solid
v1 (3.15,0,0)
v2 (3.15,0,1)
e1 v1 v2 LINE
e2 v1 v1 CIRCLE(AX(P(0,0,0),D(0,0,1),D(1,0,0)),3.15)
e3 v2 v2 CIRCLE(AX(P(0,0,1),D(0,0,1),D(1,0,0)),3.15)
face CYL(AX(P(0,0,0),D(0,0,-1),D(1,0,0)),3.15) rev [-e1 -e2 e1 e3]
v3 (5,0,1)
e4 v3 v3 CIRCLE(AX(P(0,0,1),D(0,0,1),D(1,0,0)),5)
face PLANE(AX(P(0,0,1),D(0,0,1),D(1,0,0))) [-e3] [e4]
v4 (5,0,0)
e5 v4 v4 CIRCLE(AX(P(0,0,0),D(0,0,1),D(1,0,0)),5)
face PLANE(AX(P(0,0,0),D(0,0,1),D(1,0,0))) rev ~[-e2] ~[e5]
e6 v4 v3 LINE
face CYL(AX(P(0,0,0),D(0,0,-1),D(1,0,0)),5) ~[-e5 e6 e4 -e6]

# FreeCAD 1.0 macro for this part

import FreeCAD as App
import Part
import Sketcher
from FreeCAD import Vector

doc = App.newDocument("Part")
body = doc.addObject("PartDesign::Body", "Body")

# Sketch on XY plane
sketch1 = body.newObject("Sketcher::SketchObject", "Sketch")
sketch1.AttachmentSupport = (doc.getObject("XY_Plane"), [""])
sketch1.MapMode = "FlatFace"
sketch1.addGeometry(Part.Circle(Vector(0, 0, 0), Vector(0, 0, 1), 5), False)
sketch1.addGeometry(Part.Circle(Vector(0, 0, 0), Vector(0, 0, 1), 3.1), False)
sketch1.addConstraint(Sketcher.Constraint("Coincident", 0, 3, -1, 1))
sketch1.addConstraint(Sketcher.Constraint("Coincident", 1, 3, -1, 1))
sketch1.addConstraint(Sketcher.Constraint("Diameter", 0, 10.0))
sketch1.addConstraint(Sketcher.Constraint("Diameter", 1, 6.3))
pad1 = body.newObject("PartDesign::Pad", "Pad")
pad1.Profile = sketch1
pad1.Length = 1

doc.recompute()
